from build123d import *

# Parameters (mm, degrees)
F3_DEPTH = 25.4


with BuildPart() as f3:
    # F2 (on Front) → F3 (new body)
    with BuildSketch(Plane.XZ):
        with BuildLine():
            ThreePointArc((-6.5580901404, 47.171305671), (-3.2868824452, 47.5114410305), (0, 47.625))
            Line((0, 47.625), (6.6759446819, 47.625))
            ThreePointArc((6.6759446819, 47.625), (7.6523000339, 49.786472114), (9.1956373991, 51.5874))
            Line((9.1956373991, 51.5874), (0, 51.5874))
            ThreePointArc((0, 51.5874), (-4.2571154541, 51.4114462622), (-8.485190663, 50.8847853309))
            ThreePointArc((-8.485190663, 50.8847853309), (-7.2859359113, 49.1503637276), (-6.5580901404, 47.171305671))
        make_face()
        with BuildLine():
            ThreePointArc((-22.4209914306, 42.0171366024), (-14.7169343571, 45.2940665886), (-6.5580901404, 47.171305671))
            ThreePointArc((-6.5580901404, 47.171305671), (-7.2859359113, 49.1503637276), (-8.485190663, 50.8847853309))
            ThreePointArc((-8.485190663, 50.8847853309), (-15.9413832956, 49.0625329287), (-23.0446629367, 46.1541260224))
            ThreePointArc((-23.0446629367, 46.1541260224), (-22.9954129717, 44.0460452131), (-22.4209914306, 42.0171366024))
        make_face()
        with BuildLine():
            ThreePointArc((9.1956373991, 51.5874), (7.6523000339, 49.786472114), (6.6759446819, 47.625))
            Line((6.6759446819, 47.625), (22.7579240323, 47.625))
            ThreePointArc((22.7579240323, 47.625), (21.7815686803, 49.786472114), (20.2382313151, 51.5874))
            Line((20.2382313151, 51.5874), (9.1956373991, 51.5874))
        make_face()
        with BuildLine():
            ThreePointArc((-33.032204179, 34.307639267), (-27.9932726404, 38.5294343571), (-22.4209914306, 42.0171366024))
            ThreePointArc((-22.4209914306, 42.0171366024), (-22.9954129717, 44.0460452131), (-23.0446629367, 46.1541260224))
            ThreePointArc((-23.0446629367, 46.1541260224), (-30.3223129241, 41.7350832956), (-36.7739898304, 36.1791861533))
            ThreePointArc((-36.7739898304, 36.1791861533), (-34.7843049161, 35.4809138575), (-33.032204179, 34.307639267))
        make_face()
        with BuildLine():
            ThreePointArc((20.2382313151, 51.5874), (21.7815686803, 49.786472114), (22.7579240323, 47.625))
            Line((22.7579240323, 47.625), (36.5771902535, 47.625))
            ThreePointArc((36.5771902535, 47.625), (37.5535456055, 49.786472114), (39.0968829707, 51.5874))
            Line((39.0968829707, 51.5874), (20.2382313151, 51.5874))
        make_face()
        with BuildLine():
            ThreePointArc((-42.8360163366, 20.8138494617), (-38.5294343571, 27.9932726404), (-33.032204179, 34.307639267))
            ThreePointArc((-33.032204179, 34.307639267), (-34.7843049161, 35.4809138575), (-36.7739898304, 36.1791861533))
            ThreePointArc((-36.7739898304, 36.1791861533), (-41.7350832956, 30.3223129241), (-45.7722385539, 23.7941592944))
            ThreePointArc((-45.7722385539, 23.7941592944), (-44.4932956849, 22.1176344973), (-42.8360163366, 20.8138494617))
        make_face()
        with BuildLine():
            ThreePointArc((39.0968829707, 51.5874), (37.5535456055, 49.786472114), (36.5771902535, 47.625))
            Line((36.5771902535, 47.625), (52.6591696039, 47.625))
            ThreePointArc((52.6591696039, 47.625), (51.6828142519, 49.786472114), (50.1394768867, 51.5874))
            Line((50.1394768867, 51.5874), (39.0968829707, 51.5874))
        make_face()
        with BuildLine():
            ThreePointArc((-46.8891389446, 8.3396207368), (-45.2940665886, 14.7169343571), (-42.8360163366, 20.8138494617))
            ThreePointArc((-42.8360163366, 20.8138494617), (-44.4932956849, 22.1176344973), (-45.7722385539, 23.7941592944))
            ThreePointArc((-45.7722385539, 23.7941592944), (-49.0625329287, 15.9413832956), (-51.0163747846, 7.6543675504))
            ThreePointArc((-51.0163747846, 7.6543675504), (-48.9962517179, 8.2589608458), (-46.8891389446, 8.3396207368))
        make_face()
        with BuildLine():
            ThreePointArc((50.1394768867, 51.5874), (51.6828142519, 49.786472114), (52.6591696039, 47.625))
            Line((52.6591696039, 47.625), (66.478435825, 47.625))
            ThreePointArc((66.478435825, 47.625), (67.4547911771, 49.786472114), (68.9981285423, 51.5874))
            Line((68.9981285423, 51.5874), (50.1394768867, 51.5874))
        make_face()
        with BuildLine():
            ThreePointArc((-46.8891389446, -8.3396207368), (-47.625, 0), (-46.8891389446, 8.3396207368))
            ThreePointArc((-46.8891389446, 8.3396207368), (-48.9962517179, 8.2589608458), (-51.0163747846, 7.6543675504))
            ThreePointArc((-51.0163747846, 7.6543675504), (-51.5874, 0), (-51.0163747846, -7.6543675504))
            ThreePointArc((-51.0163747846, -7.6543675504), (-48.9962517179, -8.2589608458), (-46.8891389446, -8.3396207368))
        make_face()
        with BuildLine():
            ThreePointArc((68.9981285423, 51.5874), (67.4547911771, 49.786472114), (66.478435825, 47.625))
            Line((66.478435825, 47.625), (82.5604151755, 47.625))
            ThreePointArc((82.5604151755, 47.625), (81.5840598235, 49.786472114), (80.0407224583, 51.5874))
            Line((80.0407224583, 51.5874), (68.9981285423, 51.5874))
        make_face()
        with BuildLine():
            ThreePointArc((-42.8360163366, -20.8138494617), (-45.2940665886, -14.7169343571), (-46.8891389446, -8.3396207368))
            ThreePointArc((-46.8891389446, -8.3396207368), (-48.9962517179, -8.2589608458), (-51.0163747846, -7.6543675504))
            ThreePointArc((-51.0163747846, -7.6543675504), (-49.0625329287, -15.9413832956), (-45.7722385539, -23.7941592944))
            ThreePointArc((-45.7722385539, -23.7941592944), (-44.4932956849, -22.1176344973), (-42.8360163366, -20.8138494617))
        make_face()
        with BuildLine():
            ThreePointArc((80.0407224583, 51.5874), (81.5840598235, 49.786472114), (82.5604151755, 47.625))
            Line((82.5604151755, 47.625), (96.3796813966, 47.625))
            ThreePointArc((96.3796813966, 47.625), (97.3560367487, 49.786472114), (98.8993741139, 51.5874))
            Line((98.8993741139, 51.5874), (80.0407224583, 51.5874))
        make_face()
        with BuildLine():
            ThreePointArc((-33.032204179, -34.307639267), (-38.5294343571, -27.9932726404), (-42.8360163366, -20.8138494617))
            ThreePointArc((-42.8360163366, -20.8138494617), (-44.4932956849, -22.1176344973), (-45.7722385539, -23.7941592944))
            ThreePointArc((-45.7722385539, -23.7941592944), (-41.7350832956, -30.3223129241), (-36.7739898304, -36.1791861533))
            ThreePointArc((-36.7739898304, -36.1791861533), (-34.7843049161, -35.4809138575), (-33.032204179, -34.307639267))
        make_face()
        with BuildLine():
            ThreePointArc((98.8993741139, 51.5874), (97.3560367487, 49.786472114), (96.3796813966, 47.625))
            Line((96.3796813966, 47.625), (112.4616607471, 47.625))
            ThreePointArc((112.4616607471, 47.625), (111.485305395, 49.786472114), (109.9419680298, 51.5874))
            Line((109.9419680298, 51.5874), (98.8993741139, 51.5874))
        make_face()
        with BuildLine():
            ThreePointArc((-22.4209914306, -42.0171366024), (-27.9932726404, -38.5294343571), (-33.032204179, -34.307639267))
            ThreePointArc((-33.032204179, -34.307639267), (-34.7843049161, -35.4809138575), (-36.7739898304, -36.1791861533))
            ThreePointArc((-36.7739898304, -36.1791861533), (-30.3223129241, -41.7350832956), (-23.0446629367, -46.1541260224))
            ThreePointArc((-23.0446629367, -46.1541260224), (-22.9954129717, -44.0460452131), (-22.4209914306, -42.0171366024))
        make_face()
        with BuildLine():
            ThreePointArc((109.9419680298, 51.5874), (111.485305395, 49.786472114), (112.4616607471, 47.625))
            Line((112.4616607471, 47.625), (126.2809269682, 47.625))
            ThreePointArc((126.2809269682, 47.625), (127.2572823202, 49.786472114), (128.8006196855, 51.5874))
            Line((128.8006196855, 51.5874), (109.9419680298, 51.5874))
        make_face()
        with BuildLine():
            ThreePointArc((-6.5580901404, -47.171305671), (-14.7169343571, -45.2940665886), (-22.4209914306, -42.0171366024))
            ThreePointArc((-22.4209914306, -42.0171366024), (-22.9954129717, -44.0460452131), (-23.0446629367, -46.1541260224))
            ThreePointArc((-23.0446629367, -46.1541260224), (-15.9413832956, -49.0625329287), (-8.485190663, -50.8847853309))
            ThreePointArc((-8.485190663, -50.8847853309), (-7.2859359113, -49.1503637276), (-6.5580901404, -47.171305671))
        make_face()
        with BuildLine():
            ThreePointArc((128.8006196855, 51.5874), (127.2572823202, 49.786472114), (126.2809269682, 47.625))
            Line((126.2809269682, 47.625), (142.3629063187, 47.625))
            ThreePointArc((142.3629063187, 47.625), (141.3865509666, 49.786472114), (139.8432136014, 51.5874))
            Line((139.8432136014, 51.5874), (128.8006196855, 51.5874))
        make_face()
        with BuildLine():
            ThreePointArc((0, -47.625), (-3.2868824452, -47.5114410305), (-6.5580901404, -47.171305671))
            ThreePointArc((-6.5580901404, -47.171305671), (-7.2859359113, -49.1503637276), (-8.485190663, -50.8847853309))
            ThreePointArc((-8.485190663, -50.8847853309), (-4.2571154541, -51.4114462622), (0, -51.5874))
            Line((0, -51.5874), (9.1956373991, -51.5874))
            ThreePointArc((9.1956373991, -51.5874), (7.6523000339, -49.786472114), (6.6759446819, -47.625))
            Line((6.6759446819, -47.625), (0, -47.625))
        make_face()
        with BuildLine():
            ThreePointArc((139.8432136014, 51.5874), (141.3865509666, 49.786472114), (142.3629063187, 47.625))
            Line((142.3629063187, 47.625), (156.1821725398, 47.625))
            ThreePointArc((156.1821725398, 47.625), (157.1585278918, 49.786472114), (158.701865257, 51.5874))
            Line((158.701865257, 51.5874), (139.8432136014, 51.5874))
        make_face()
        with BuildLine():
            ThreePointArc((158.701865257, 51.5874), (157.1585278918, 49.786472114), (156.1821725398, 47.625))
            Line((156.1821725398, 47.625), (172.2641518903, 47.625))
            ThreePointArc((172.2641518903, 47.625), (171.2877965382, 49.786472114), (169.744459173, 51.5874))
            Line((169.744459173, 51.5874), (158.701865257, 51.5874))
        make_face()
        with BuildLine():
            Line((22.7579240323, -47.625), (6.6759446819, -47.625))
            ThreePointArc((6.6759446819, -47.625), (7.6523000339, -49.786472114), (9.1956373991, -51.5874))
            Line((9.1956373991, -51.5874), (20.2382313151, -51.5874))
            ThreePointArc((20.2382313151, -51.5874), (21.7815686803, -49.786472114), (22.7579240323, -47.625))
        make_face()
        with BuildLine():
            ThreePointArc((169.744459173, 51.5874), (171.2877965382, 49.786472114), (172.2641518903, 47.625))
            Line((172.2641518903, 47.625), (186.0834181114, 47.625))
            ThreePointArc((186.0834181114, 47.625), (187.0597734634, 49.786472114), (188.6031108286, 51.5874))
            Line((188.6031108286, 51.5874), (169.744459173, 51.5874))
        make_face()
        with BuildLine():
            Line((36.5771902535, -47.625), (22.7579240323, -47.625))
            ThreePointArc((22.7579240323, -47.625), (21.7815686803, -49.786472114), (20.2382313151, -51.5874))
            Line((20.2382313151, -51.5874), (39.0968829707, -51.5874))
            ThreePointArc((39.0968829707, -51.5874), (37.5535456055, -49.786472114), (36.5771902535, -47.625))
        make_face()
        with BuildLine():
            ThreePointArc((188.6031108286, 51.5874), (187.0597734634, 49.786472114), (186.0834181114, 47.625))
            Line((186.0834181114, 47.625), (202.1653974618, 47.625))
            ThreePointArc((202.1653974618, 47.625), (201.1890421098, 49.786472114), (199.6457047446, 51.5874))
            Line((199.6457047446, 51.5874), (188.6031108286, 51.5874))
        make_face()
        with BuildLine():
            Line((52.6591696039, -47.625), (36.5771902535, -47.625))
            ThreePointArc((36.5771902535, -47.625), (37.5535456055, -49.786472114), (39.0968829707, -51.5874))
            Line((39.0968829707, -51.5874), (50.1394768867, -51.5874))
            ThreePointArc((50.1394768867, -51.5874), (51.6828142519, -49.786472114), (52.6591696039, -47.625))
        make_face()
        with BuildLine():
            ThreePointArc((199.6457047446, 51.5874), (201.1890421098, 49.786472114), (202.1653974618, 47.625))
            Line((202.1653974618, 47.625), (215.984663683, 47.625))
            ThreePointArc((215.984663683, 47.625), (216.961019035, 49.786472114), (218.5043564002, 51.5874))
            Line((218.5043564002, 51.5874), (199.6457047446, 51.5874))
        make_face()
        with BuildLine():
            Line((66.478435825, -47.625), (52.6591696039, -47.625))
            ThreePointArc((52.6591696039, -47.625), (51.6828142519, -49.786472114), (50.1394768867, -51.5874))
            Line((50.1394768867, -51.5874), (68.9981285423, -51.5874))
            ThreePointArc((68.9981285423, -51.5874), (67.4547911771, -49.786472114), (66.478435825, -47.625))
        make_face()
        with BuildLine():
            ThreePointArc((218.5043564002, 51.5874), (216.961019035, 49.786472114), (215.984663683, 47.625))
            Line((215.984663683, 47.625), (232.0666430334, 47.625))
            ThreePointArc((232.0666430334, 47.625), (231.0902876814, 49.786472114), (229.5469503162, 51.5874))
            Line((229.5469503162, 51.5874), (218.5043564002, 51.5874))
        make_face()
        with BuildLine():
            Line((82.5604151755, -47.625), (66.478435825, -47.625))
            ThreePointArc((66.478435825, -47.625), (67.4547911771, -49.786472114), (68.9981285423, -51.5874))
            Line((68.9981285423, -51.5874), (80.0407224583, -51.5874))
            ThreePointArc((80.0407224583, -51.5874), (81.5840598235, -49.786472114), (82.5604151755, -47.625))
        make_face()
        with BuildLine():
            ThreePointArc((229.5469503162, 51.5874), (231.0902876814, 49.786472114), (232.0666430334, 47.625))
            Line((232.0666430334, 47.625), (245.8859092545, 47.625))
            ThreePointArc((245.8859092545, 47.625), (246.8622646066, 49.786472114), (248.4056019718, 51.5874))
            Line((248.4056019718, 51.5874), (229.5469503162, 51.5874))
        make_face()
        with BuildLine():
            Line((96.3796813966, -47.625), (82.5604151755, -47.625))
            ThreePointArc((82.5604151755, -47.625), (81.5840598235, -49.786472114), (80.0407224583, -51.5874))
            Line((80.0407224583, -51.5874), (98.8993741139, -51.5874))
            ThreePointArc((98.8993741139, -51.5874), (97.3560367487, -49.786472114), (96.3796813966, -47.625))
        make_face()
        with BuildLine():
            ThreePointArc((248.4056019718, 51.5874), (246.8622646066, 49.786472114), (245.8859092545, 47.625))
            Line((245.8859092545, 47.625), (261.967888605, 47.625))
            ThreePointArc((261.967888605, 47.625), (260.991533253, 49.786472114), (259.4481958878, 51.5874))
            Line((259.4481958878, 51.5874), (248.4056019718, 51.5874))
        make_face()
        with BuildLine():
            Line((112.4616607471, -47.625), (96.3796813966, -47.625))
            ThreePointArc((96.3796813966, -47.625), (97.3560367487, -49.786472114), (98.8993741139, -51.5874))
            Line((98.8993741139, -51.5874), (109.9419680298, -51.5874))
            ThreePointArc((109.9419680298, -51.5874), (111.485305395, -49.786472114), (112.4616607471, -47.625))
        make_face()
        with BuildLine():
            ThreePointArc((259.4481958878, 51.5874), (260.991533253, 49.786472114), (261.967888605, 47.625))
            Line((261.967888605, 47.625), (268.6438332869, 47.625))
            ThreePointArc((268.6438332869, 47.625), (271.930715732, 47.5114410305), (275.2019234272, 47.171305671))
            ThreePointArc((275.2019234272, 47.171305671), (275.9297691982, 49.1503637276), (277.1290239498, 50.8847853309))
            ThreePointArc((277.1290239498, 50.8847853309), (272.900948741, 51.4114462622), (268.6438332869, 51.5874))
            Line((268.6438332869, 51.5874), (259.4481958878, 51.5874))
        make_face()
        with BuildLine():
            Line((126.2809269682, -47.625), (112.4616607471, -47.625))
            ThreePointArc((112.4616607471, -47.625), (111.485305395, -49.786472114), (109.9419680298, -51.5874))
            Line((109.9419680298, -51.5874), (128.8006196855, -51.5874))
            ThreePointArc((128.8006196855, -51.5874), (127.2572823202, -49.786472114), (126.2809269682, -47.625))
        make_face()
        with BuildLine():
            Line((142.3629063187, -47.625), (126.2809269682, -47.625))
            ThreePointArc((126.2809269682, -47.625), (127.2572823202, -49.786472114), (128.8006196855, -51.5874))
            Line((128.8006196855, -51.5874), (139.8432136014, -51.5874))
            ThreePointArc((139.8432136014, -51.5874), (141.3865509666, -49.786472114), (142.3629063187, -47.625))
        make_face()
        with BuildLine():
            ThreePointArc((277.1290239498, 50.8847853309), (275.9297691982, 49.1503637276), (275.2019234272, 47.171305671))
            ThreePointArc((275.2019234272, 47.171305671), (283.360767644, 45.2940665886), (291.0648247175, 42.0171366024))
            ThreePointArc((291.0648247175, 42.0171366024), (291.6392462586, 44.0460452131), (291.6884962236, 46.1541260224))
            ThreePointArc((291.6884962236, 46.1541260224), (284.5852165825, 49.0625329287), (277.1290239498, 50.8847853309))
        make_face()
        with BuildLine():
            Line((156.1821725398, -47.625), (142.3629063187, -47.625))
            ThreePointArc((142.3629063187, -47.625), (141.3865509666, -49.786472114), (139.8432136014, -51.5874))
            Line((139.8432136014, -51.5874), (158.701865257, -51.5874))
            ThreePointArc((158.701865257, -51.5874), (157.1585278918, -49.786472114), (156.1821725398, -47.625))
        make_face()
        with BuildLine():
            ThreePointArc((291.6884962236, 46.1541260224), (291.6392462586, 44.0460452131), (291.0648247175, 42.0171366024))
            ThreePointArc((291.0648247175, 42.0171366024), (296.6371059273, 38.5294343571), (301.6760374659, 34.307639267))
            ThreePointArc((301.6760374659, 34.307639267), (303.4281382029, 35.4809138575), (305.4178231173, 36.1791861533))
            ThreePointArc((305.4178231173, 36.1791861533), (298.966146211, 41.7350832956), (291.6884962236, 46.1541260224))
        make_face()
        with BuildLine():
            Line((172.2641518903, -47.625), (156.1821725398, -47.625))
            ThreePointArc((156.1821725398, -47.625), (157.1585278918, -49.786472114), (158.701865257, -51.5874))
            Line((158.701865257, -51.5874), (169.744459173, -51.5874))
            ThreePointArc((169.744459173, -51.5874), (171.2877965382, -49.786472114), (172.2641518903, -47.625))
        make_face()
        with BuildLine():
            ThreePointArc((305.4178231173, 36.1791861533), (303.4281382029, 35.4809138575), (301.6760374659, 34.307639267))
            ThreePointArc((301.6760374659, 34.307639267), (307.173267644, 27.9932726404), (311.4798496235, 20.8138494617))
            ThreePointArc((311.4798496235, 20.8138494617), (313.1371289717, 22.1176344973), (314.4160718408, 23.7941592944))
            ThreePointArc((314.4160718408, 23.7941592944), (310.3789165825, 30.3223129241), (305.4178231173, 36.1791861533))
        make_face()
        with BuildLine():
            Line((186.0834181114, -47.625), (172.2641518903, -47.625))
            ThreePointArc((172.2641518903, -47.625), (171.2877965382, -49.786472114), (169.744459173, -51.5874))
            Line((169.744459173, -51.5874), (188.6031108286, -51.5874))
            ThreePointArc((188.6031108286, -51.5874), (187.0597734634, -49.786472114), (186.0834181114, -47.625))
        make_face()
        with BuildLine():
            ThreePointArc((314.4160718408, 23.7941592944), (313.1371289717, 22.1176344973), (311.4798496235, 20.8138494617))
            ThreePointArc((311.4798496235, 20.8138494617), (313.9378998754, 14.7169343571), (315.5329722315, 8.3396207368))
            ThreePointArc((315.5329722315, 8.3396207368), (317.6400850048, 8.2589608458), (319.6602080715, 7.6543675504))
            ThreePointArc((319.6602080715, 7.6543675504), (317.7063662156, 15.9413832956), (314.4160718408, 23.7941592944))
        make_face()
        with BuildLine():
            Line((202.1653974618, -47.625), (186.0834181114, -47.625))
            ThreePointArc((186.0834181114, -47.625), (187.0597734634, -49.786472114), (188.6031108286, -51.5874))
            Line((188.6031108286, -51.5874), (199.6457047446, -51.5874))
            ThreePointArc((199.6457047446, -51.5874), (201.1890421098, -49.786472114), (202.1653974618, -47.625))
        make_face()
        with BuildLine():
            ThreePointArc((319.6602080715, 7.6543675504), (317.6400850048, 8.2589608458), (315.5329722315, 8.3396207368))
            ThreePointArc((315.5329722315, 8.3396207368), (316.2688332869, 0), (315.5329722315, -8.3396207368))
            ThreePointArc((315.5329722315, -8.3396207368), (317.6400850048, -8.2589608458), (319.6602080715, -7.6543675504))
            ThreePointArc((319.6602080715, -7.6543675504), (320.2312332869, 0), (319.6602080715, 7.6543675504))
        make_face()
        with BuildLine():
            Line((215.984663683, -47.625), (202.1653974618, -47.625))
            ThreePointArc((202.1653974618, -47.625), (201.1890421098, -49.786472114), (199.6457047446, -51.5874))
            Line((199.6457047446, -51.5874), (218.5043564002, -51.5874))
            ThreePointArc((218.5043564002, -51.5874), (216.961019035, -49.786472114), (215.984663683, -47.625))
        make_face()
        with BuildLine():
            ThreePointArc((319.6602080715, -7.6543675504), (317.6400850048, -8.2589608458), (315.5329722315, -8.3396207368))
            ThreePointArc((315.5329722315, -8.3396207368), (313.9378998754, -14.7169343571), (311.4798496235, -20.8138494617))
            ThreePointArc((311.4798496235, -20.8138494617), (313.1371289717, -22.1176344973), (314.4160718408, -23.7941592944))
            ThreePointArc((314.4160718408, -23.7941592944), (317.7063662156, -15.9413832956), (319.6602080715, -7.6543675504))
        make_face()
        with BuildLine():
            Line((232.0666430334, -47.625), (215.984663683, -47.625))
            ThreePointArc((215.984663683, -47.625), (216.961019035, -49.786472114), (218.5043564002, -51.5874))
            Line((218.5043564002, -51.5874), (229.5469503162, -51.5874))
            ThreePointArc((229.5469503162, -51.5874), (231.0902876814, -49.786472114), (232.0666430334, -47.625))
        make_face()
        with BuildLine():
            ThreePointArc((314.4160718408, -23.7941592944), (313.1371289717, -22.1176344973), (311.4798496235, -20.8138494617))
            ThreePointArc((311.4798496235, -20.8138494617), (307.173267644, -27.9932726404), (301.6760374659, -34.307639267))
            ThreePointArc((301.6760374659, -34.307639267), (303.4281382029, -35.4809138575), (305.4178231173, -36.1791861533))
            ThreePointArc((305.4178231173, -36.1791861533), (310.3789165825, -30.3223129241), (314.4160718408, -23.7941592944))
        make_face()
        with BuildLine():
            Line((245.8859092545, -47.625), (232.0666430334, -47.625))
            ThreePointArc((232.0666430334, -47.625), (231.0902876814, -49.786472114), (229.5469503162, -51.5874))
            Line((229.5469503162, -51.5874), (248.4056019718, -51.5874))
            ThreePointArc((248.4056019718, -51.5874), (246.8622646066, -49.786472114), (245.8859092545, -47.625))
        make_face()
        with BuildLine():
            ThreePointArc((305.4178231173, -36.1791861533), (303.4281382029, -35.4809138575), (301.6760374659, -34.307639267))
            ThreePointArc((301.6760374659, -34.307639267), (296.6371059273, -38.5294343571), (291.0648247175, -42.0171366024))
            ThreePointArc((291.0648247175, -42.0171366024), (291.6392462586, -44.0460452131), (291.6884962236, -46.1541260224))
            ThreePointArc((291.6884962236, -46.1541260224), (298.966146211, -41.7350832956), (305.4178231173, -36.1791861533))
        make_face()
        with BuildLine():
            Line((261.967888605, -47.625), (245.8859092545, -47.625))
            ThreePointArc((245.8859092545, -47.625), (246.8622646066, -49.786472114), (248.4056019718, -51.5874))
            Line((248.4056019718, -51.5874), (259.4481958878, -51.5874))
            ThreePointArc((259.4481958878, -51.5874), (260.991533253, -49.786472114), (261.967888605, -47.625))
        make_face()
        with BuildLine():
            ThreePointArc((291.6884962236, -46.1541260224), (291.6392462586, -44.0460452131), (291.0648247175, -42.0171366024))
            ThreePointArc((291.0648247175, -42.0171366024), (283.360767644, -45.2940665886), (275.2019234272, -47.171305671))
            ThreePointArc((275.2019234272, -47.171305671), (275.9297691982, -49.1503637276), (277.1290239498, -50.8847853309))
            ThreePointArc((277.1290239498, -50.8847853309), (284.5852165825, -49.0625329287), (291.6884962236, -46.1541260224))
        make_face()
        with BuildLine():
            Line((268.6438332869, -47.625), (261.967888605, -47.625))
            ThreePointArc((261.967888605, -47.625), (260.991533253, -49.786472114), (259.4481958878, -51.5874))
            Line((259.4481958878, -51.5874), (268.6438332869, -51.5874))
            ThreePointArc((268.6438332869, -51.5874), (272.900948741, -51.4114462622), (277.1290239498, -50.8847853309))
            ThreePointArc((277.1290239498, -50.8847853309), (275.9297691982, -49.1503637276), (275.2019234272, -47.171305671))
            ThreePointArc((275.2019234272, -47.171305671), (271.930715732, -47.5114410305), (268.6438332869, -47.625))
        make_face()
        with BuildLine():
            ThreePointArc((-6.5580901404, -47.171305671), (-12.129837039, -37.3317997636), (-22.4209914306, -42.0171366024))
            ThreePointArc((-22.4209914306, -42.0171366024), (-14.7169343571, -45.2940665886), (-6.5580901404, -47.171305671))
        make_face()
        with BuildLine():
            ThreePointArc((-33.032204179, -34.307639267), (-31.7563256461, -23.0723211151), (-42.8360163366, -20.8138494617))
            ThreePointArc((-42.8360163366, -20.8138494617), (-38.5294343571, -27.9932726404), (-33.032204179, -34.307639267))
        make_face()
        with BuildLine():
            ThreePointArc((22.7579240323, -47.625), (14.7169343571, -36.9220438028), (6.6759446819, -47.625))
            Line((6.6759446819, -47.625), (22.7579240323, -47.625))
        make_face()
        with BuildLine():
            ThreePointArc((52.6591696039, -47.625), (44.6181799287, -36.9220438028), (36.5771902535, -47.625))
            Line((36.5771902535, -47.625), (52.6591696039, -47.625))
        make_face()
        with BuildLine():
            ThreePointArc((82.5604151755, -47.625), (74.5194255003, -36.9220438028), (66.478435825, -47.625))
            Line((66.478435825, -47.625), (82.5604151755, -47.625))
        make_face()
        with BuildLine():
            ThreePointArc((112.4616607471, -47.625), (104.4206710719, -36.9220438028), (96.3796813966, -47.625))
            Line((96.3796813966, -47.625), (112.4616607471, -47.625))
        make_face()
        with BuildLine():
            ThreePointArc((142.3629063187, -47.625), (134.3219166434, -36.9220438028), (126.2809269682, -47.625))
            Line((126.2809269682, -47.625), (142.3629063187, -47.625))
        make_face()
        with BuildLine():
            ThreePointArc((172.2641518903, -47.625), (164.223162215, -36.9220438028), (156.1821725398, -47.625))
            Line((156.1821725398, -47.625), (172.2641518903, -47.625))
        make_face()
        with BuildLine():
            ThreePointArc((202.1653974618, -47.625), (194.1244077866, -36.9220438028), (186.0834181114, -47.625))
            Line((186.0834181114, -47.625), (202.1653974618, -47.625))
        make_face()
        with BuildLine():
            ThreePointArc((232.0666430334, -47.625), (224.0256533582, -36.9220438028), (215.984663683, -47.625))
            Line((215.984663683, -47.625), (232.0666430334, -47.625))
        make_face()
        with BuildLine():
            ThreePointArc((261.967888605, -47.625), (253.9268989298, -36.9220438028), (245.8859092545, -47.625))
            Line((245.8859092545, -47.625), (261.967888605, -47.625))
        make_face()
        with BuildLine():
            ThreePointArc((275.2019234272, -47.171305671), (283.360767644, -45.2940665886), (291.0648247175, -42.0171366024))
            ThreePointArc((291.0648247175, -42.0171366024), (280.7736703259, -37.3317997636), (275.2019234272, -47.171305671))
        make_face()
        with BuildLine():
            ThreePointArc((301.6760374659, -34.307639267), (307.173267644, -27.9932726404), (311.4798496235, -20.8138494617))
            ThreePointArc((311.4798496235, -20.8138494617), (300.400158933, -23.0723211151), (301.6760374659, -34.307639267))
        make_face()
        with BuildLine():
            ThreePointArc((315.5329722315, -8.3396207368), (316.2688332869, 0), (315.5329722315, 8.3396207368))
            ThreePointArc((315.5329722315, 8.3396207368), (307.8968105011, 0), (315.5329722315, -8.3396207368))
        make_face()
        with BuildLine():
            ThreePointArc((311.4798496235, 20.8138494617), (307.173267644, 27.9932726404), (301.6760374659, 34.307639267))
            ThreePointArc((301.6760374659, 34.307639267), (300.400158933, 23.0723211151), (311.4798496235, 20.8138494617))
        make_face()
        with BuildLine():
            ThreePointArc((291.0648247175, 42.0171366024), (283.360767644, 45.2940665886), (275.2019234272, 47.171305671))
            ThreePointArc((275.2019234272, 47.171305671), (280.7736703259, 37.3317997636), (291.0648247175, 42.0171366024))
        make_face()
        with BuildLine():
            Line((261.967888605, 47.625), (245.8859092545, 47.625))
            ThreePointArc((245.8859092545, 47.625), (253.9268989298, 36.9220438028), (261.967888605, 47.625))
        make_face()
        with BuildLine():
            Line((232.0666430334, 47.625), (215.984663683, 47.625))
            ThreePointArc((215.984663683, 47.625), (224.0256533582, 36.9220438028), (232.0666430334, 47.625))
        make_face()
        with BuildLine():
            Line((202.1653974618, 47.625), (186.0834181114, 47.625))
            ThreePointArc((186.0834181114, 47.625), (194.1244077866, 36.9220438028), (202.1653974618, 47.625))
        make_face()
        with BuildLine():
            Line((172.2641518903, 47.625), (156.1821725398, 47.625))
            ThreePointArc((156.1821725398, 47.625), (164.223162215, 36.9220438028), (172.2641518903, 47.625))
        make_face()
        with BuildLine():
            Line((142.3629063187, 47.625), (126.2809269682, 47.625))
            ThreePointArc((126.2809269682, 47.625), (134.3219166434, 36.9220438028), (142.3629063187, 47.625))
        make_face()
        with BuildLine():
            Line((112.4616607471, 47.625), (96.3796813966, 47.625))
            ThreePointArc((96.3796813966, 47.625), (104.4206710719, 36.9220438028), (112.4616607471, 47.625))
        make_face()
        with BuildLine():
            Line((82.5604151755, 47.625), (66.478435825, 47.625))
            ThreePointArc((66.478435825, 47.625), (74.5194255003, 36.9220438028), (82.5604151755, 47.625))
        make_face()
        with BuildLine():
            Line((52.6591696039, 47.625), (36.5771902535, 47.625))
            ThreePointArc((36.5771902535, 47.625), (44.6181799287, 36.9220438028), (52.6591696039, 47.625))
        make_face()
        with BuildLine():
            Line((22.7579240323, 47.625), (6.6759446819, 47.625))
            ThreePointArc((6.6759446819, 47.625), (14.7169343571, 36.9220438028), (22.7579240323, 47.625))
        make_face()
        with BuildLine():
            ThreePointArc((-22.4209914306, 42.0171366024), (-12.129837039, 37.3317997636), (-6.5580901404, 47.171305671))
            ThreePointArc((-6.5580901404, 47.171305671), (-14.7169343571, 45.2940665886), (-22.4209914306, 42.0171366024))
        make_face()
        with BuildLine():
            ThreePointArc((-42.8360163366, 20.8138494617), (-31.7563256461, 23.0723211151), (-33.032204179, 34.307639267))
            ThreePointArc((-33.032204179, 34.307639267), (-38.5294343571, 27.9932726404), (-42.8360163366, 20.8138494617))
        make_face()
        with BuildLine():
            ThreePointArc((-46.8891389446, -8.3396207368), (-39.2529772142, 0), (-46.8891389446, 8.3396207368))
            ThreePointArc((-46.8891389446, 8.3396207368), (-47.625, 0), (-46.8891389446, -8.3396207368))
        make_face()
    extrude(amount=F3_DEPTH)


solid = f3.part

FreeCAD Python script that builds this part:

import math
import FreeCAD as App
import Part
import Sketcher

V = App.Vector
Q = App.Units.Quantity

doc = App.newDocument("Part")
body = doc.addObject("PartDesign::Body", "Body")

sketch1 = body.newObject("Sketcher::SketchObject", "Sketch")
sketch1.AttachmentSupport = (doc.getObject("XZ_Plane"), [""])
sketch1.MapMode = "FlatFace"
sketch1.addGeometry([
    Part.ArcOfCircle(Part.Circle(V(269, 0, 0), V(0, 0, 1), 52), math.radians(-80.53), math.radians(-63.47)),
    Part.ArcOfCircle(Part.Circle(V(269, 0, 0), V(0, 0, 1), 52), math.radians(-63.47), math.radians(-44.53)),
    Part.ArcOfCircle(Part.Circle(V(269, 0, 0), V(0, 0, 1), 52), math.radians(-44.53), math.radians(-27.47)),
    Part.ArcOfCircle(Part.Circle(V(269, 0, 0), V(0, 0, 1), 52), math.radians(-27.47), math.radians(-8.53)),
    Part.ArcOfCircle(Part.Circle(V(269, 0, 0), V(0, 0, 1), 52), math.radians(-8.53), math.radians(8.53)),
    Part.ArcOfCircle(Part.Circle(V(269, 0, 0), V(0, 0, 1), 52), math.radians(8.53), math.radians(27.47)),
    Part.ArcOfCircle(Part.Circle(V(269, 0, 0), V(0, 0, 1), 52), math.radians(27.47), math.radians(44.53)),
    Part.ArcOfCircle(Part.Circle(V(269, 0, 0), V(0, 0, 1), 52), math.radians(44.53), math.radians(63.47)),
    Part.ArcOfCircle(Part.Circle(V(269, 0, 0), V(0, 0, 1), 52), math.radians(63.47), math.radians(80.53)),
    Part.ArcOfCircle(Part.Circle(V(269, 0, 0), V(0, 0, 1), 52), math.radians(80.53), math.radians(90)),
    Part.LineSegment(V(269, 52, 0), V(0, 52, 0)),
    Part.ArcOfCircle(Part.Circle(V(0, 0, 0), V(0, 0, 1), 52), math.radians(90), math.radians(117)),
    Part.ArcOfCircle(Part.Circle(V(0, 0, 0), V(0, 0, 1), 52), math.radians(116.53), math.radians(135.47)),
    Part.ArcOfCircle(Part.Circle(V(0, 0, 0), V(0, 0, 1), 52), math.radians(135.47), math.radians(152.53)),
    Part.ArcOfCircle(Part.Circle(V(0, 0, 0), V(0, 0, 1), 52), math.radians(152.53), math.radians(171.47)),
    Part.ArcOfCircle(Part.Circle(V(0, 0, 0), V(0, 0, 1), 52), math.radians(171.47), math.radians(188.53)),
    Part.ArcOfCircle(Part.Circle(V(0, 0, 0), V(0, 0, 1), 52), math.radians(-171.47), math.radians(-152.53)),
    Part.ArcOfCircle(Part.Circle(V(0, 0, 0), V(0, 0, 1), 52), math.radians(-152.53), math.radians(-135.47)),
    Part.ArcOfCircle(Part.Circle(V(0, 0, 0), V(0, 0, 1), 52), math.radians(-135.47), math.radians(-116.53)),
    Part.ArcOfCircle(Part.Circle(V(0, 0, 0), V(0, 0, 1), 52), math.radians(-117), math.radians(-90)),
    Part.LineSegment(V(0, -52, 0), V(269, -52, 0)),
    Part.ArcOfCircle(Part.Circle(V(269, 0, 0), V(0, 0, 1), 52), math.radians(-90), math.radians(-80.53)),
    Part.ArcOfCircle(Part.Circle(V(0, 0, 0), V(0, 0, 1), 48), math.radians(90), math.radians(97.91)),
    Part.LineSegment(V(0, 48, 0), V(7, 48, 0)),
    Part.ArcOfCircle(Part.Circle(V(15, 45, 0), V(0, 0, 1), 8), math.radians(164), math.radians(376)),
    Part.LineSegment(V(23, 48, 0), V(37, 48, 0)),
    Part.ArcOfCircle(Part.Circle(V(45, 45, 0), V(0, 0, 1), 8), math.radians(164), math.radians(376)),
    Part.LineSegment(V(53, 48, 0), V(66, 48, 0)),
    Part.ArcOfCircle(Part.Circle(V(75, 45, 0), V(0, 0, 1), 8), math.radians(164), math.radians(376)),
    Part.LineSegment(V(83, 48, 0), V(96, 48, 0)),
    Part.ArcOfCircle(Part.Circle(V(104, 45, 0), V(0, 0, 1), 8), math.radians(164), math.radians(376)),
    Part.LineSegment(V(112, 48, 0), V(126, 48, 0)),
    Part.ArcOfCircle(Part.Circle(V(134, 45, 0), V(0, 0, 1), 8), math.radians(164), math.radians(376)),
    Part.LineSegment(V(142, 48, 0), V(156, 48, 0)),
    Part.ArcOfCircle(Part.Circle(V(164, 45, 0), V(0, 0, 1), 8), math.radians(164), math.radians(376)),
    Part.LineSegment(V(172, 48, 0), V(186, 48, 0)),
    Part.ArcOfCircle(Part.Circle(V(194, 45, 0), V(0, 0, 1), 8), math.radians(164), math.radians(376)),
    Part.LineSegment(V(202, 48, 0), V(216, 48, 0)),
    Part.ArcOfCircle(Part.Circle(V(224, 45, 0), V(0, 0, 1), 8), math.radians(164), math.radians(376)),
    Part.LineSegment(V(232, 48, 0), V(246, 48, 0)),
    Part.ArcOfCircle(Part.Circle(V(254, 45, 0), V(0, 0, 1), 8), math.radians(164), math.radians(376)),
    Part.LineSegment(V(262, 48, 0), V(269, 48, 0)),
    Part.ArcOfCircle(Part.Circle(V(269, 0, 0), V(0, 0, 1), 48), math.radians(82.09), math.radians(90)),
    Part.ArcOfCircle(Part.Circle(V(283, 45, 0), V(0, 0, 1), 8), math.radians(167), math.radians(337)),
    Part.ArcOfCircle(Part.Circle(V(269, 0, 0), V(0, 0, 1), 48), math.radians(46.09), math.radians(61.91)),
    Part.ArcOfCircle(Part.Circle(V(307, 28, 0), V(0, 0, 1), 8), math.radians(131), math.radians(301)),
    Part.ArcOfCircle(Part.Circle(V(269, 0, 0), V(0, 0, 1), 48), math.radians(10.09), math.radians(25.91)),
    Part.ArcOfCircle(Part.Circle(V(316, 0, 0), V(0, 0, 1), 8), math.radians(95), math.radians(265)),
    Part.ArcOfCircle(Part.Circle(V(269, 0, 0), V(0, 0, 1), 48), math.radians(-25.91), math.radians(-10.09)),
    Part.ArcOfCircle(Part.Circle(V(307, -28, 0), V(0, 0, 1), 8), math.radians(59), math.radians(229)),
    Part.ArcOfCircle(Part.Circle(V(269, 0, 0), V(0, 0, 1), 48), math.radians(-61.91), math.radians(-46.09)),
    Part.ArcOfCircle(Part.Circle(V(283, -45, 0), V(0, 0, 1), 8), math.radians(23), math.radians(193)),
    Part.ArcOfCircle(Part.Circle(V(269, 0, 0), V(0, 0, 1), 48), math.radians(-90), math.radians(-82.09)),
    Part.LineSegment(V(269, -48, 0), V(262, -48, 0)),
    Part.ArcOfCircle(Part.Circle(V(254, -45, 0), V(0, 0, 1), 8), math.radians(-16), math.radians(196)),
    Part.LineSegment(V(246, -48, 0), V(232, -48, 0)),
    Part.ArcOfCircle(Part.Circle(V(224, -45, 0), V(0, 0, 1), 8), math.radians(-16), math.radians(196)),
    Part.LineSegment(V(216, -48, 0), V(202, -48, 0)),
    Part.ArcOfCircle(Part.Circle(V(194, -45, 0), V(0, 0, 1), 8), math.radians(-16), math.radians(196)),
    Part.LineSegment(V(186, -48, 0), V(172, -48, 0)),
    Part.ArcOfCircle(Part.Circle(V(164, -45, 0), V(0, 0, 1), 8), math.radians(-16), math.radians(196)),
    Part.LineSegment(V(156, -48, 0), V(142, -48, 0)),
    Part.ArcOfCircle(Part.Circle(V(134, -45, 0), V(0, 0, 1), 8), math.radians(-16), math.radians(196)),
    Part.LineSegment(V(126, -48, 0), V(112, -48, 0)),
    Part.ArcOfCircle(Part.Circle(V(104, -45, 0), V(0, 0, 1), 8), math.radians(-16), math.radians(196)),
    Part.LineSegment(V(96, -48, 0), V(83, -48, 0)),
    Part.ArcOfCircle(Part.Circle(V(75, -45, 0), V(0, 0, 1), 8), math.radians(-16), math.radians(196)),
    Part.LineSegment(V(66, -48, 0), V(53, -48, 0)),
    Part.ArcOfCircle(Part.Circle(V(45, -45, 0), V(0, 0, 1), 8), math.radians(-16), math.radians(196)),
    Part.LineSegment(V(37, -48, 0), V(23, -48, 0)),
    Part.ArcOfCircle(Part.Circle(V(15, -45, 0), V(0, 0, 1), 8), math.radians(-16), math.radians(196)),
    Part.LineSegment(V(7, -48, 0), V(0, -48, 0)),
    Part.ArcOfCircle(Part.Circle(V(0, 0, 0), V(0, 0, 1), 48), math.radians(-97.91), math.radians(-90)),
    Part.ArcOfCircle(Part.Circle(V(-15, -45, 0), V(0, 0, 1), 8), math.radians(-13), math.radians(157)),
    Part.ArcOfCircle(Part.Circle(V(0, 0, 0), V(0, 0, 1), 48), math.radians(-133.91), math.radians(-118.09)),
    Part.ArcOfCircle(Part.Circle(V(-39, -28, 0), V(0, 0, 1), 8), math.radians(-49), math.radians(121)),
    Part.ArcOfCircle(Part.Circle(V(0, 0, 0), V(0, 0, 1), 48), math.radians(-169.91), math.radians(-154.09)),
    Part.ArcOfCircle(Part.Circle(V(-48, 0, 0), V(0, 0, 1), 8), math.radians(-85), math.radians(85)),
    Part.ArcOfCircle(Part.Circle(V(0, 0, 0), V(0, 0, 1), 48), math.radians(154.09), math.radians(169.91)),
    Part.ArcOfCircle(Part.Circle(V(-39, 28, 0), V(0, 0, 1), 8), math.radians(-121), math.radians(49)),
    Part.ArcOfCircle(Part.Circle(V(0, 0, 0), V(0, 0, 1), 48), math.radians(118.09), math.radians(133.91)),
    Part.ArcOfCircle(Part.Circle(V(-15, 45, 0), V(0, 0, 1), 8), math.radians(-157), math.radians(13)),
], False)
sketch1.addConstraint([
    Sketcher.Constraint("Tangent", 0, 2, 1, 1),
    Sketcher.Constraint("Tangent", 1, 2, 2, 1),
    Sketcher.Constraint("Tangent", 2, 2, 3, 1),
    Sketcher.Constraint("Tangent", 3, 2, 4, 1),
    Sketcher.Constraint("Tangent", 4, 2, 5, 1),
    Sketcher.Constraint("Tangent", 5, 2, 6, 1),
    Sketcher.Constraint("Tangent", 6, 2, 7, 1),
    Sketcher.Constraint("Tangent", 7, 2, 8, 1),
    Sketcher.Constraint("Tangent", 8, 2, 9, 1),
    Sketcher.Constraint("Tangent", 9, 2, 10, 1),
    Sketcher.Constraint("Tangent", 10, 2, 11, 1),
    Sketcher.Constraint("Tangent", 11, 2, 12, 1),
    Sketcher.Constraint("Tangent", 12, 2, 13, 1),
    Sketcher.Constraint("Tangent", 13, 2, 14, 1),
    Sketcher.Constraint("Tangent", 14, 2, 15, 1),
    Sketcher.Constraint("Tangent", 15, 2, 16, 1),
    Sketcher.Constraint("Tangent", 16, 2, 17, 1),
    Sketcher.Constraint("Tangent", 17, 2, 18, 1),
    Sketcher.Constraint("Tangent", 18, 2, 19, 1),
    Sketcher.Constraint("Tangent", 19, 2, 20, 1),
    Sketcher.Constraint("Tangent", 20, 2, 21, 1),
    Sketcher.Constraint("Tangent", 21, 2, 0, 1),
    Sketcher.Constraint("Tangent", 22, 1, 23, 1),
    Sketcher.Constraint("Coincident", 23, 2, 24, 1),
    Sketcher.Constraint("Coincident", 24, 2, 25, 1),
    Sketcher.Constraint("Coincident", 25, 2, 26, 1),
    Sketcher.Constraint("Coincident", 26, 2, 27, 1),
    Sketcher.Constraint("Coincident", 27, 2, 28, 1),
    Sketcher.Constraint("Coincident", 28, 2, 29, 1),
    Sketcher.Constraint("Coincident", 29, 2, 30, 1),
    Sketcher.Constraint("Coincident", 30, 2, 31, 1),
    Sketcher.Constraint("Coincident", 31, 2, 32, 1),
    Sketcher.Constraint("Coincident", 32, 2, 33, 1),
    Sketcher.Constraint("Coincident", 33, 2, 34, 1),
    Sketcher.Constraint("Coincident", 34, 2, 35, 1),
    Sketcher.Constraint("Coincident", 35, 2, 36, 1),
    Sketcher.Constraint("Coincident", 36, 2, 37, 1),
    Sketcher.Constraint("Coincident", 37, 2, 38, 1),
    Sketcher.Constraint("Coincident", 38, 2, 39, 1),
    Sketcher.Constraint("Coincident", 39, 2, 40, 1),
    Sketcher.Constraint("Coincident", 40, 2, 41, 1),
    Sketcher.Constraint("Tangent", 41, 2, 42, 2),
    Sketcher.Constraint("Coincident", 42, 1, 43, 1),
    Sketcher.Constraint("Coincident", 43, 2, 44, 2),
    Sketcher.Constraint("Coincident", 44, 1, 45, 1),
    Sketcher.Constraint("Coincident", 45, 2, 46, 2),
    Sketcher.Constraint("Coincident", 46, 1, 47, 1),
    Sketcher.Constraint("Coincident", 47, 2, 48, 2),
    Sketcher.Constraint("Coincident", 48, 1, 49, 1),
    Sketcher.Constraint("Coincident", 49, 2, 50, 2),
    Sketcher.Constraint("Coincident", 50, 1, 51, 1),
    Sketcher.Constraint("Coincident", 51, 2, 52, 2),
    Sketcher.Constraint("Tangent", 52, 1, 53, 1),
    Sketcher.Constraint("Coincident", 53, 2, 54, 1),
    Sketcher.Constraint("Coincident", 54, 2, 55, 1),
    Sketcher.Constraint("Coincident", 55, 2, 56, 1),
    Sketcher.Constraint("Coincident", 56, 2, 57, 1),
    Sketcher.Constraint("Coincident", 57, 2, 58, 1),
    Sketcher.Constraint("Coincident", 58, 2, 59, 1),
    Sketcher.Constraint("Coincident", 59, 2, 60, 1),
    Sketcher.Constraint("Coincident", 60, 2, 61, 1),
    Sketcher.Constraint("Coincident", 61, 2, 62, 1),
    Sketcher.Constraint("Coincident", 62, 2, 63, 1),
    Sketcher.Constraint("Coincident", 63, 2, 64, 1),
    Sketcher.Constraint("Coincident", 64, 2, 65, 1),
    Sketcher.Constraint("Coincident", 65, 2, 66, 1),
    Sketcher.Constraint("Coincident", 66, 2, 67, 1),
    Sketcher.Constraint("Coincident", 67, 2, 68, 1),
    Sketcher.Constraint("Coincident", 68, 2, 69, 1),
    Sketcher.Constraint("Coincident", 69, 2, 70, 1),
    Sketcher.Constraint("Coincident", 70, 2, 71, 1),
    Sketcher.Constraint("Tangent", 71, 2, 72, 2),
    Sketcher.Constraint("Coincident", 72, 1, 73, 1),
    Sketcher.Constraint("Coincident", 73, 2, 74, 2),
    Sketcher.Constraint("Coincident", 74, 1, 75, 1),
    Sketcher.Constraint("Coincident", 75, 2, 76, 2),
    Sketcher.Constraint("Coincident", 76, 1, 77, 1),
    Sketcher.Constraint("Coincident", 77, 2, 78, 2),
    Sketcher.Constraint("Coincident", 78, 1, 79, 1),
    Sketcher.Constraint("Coincident", 79, 2, 80, 2),
    Sketcher.Constraint("Coincident", 80, 1, 81, 1),
    Sketcher.Constraint("Coincident", 81, 2, 22, 2),
    Sketcher.Constraint("Horizontal", 10),
    Sketcher.Constraint("Horizontal", 20),
    Sketcher.Constraint("Horizontal", 23),
    Sketcher.Constraint("Horizontal", 25),
    Sketcher.Constraint("Horizontal", 27),
    Sketcher.Constraint("Horizontal", 29),
    Sketcher.Constraint("Horizontal", 31),
    Sketcher.Constraint("Horizontal", 33),
    Sketcher.Constraint("Horizontal", 35),
    Sketcher.Constraint("Horizontal", 37),
    Sketcher.Constraint("Horizontal", 39),
    Sketcher.Constraint("Horizontal", 41),
    Sketcher.Constraint("Horizontal", 53),
    Sketcher.Constraint("Horizontal", 55),
    Sketcher.Constraint("Horizontal", 57),
    Sketcher.Constraint("Horizontal", 59),
    Sketcher.Constraint("Horizontal", 61),
    Sketcher.Constraint("Horizontal", 63),
    Sketcher.Constraint("Horizontal", 65),
    Sketcher.Constraint("Horizontal", 67),
    Sketcher.Constraint("Horizontal", 69),
    Sketcher.Constraint("Horizontal", 71),
    Sketcher.Constraint("Coincident", 11, 3, -1, 1),
    Sketcher.Constraint("Coincident", 13, 3, -1, 1),
    Sketcher.Constraint("Coincident", 15, 3, -1, 1),
    Sketcher.Constraint("Coincident", 17, 3, -1, 1),
    Sketcher.Constraint("Coincident", 19, 3, -1, 1),
    Sketcher.Constraint("Coincident", 22, 3, -1, 1),
    Sketcher.Constraint("Coincident", 72, 3, -1, 1),
    Sketcher.Constraint("Coincident", 74, 3, -1, 1),
    Sketcher.Constraint("Coincident", 76, 3, -1, 1),
    Sketcher.Constraint("Coincident", 78, 3, -1, 1),
    Sketcher.Constraint("Coincident", 80, 3, -1, 1),
    Sketcher.Constraint("Coincident", 2, 3, 0, 3),
    Sketcher.Constraint("Coincident", 4, 3, 0, 3),
    Sketcher.Constraint("Coincident", 6, 3, 0, 3),
    Sketcher.Constraint("Coincident", 8, 3, 0, 3),
    Sketcher.Constraint("Coincident", 42, 3, 0, 3),
    Sketcher.Constraint("Coincident", 44, 3, 0, 3),
    Sketcher.Constraint("Coincident", 46, 3, 0, 3),
    Sketcher.Constraint("Coincident", 48, 3, 0, 3),
    Sketcher.Constraint("Coincident", 50, 3, 0, 3),
    Sketcher.Constraint("Coincident", 52, 3, 0, 3),
    Sketcher.Constraint("Equal", 8, 9),
    Sketcher.Constraint("Equal", 9, 11),
    Sketcher.Constraint("Equal", 24, 26),
    Sketcher.Constraint("Equal", 26, 28),
    Sketcher.Constraint("Equal", 28, 30),
    Sketcher.Constraint("Equal", 30, 32),
    Sketcher.Constraint("Equal", 32, 34),
    Sketcher.Constraint("Equal", 34, 36),
    Sketcher.Constraint("Equal", 36, 38),
    Sketcher.Constraint("Equal", 38, 40),
    Sketcher.Constraint("Equal", 22, 42),
    Sketcher.Constraint("Equal", 40, 43),
    Sketcher.Constraint("Equal", 42, 44),
    Sketcher.Constraint("Equal", 43, 45),
    Sketcher.Constraint("Equal", 44, 46),
    Sketcher.Constraint("Equal", 45, 47),
    Sketcher.Constraint("Equal", 46, 48),
    Sketcher.Constraint("Equal", 47, 49),
    Sketcher.Constraint("Equal", 48, 50),
    Sketcher.Constraint("Equal", 49, 51),
    Sketcher.Constraint("Equal", 50, 52),
    Sketcher.Constraint("Equal", 51, 54),
    Sketcher.Constraint("Equal", 54, 56),
    Sketcher.Constraint("Equal", 56, 58),
    Sketcher.Constraint("Equal", 58, 60),
    Sketcher.Constraint("Equal", 60, 62),
    Sketcher.Constraint("Equal", 62, 64),
    Sketcher.Constraint("Equal", 64, 66),
    Sketcher.Constraint("Equal", 66, 68),
    Sketcher.Constraint("Equal", 68, 70),
    Sketcher.Constraint("Equal", 52, 72),
    Sketcher.Constraint("Equal", 70, 73),
    Sketcher.Constraint("Equal", 72, 74),
    Sketcher.Constraint("Equal", 73, 75),
    Sketcher.Constraint("Equal", 74, 76),
    Sketcher.Constraint("Equal", 75, 77),
    Sketcher.Constraint("Equal", 76, 78),
    Sketcher.Constraint("Equal", 77, 79),
    Sketcher.Constraint("Equal", 78, 80),
    Sketcher.Constraint("Equal", 79, 81),
    Sketcher.Constraint("Symmetric", 24, 3, 73, 3, -1, 1),
    Sketcher.Constraint("Symmetric", 70, 3, 81, 3, -1, 1),
    Sketcher.Constraint("Symmetric", 70, 3, 73, 3, -2),
    Sketcher.Constraint("Symmetric", 45, 3, 49, 3, -1),
    Sketcher.Constraint("Symmetric", 43, 3, 51, 3, -1),
    Sketcher.Constraint("Symmetric", 40, 3, 54, 3, -1),
    Sketcher.Constraint("Symmetric", 38, 3, 56, 3, -1),
    Sketcher.Constraint("Symmetric", 36, 3, 58, 3, -1),
    Sketcher.Constraint("Symmetric", 34, 3, 60, 3, -1),
    Sketcher.Constraint("Symmetric", 32, 3, 62, 3, -1),
    Sketcher.Constraint("Symmetric", 30, 3, 64, 3, -1),
    Sketcher.Constraint("Symmetric", 28, 3, 66, 3, -1),
    Sketcher.Constraint("Symmetric", 26, 3, 68, 3, -1),
    Sketcher.Constraint("Symmetric", 75, 3, 79, 3, -1),
    Sketcher.Constraint("PointOnObject", 47, 3, -1),
    Sketcher.Constraint("PointOnObject", 77, 3, -1),
    Sketcher.Constraint("Horizontal", 24, 3, 26, 3),
    Sketcher.Constraint("Horizontal", 26, 3, 28, 3),
    Sketcher.Constraint("Horizontal", 28, 3, 30, 3),
    Sketcher.Constraint("Horizontal", 30, 3, 32, 3),
    Sketcher.Constraint("Horizontal", 32, 3, 34, 3),
    Sketcher.Constraint("Horizontal", 34, 3, 36, 3),
    Sketcher.Constraint("Horizontal", 36, 3, 38, 3),
    Sketcher.Constraint("Horizontal", 38, 3, 40, 3),
    Sketcher.Constraint("Horizontal", 40, 3, 43, 3),
    Sketcher.Constraint("Horizontal", 49, 3, 75, 3),
    Sketcher.Constraint("Horizontal", 7, 2, 11, 2),
    Sketcher.Constraint("Horizontal", 6, 2, 12, 2),
    Sketcher.Constraint("Horizontal", 5, 2, 13, 2),
    Sketcher.Constraint("Horizontal", 4, 2, 14, 2),
    Sketcher.Constraint("Horizontal", 3, 2, 15, 2),
    Sketcher.Constraint("Horizontal", 2, 2, 16, 2),
    Sketcher.Constraint("Horizontal", 1, 2, 17, 2),
    Sketcher.Constraint("Horizontal", 0, 2, 18, 2),
    Sketcher.Constraint("Horizontal", 23, 2, 24, 2),
    Sketcher.Constraint("Horizontal", 25, 2, 26, 2),
    Sketcher.Constraint("Horizontal", 27, 2, 28, 2),
    Sketcher.Constraint("Horizontal", 29, 2, 30, 2),
    Sketcher.Constraint("Horizontal", 31, 2, 32, 2),
    Sketcher.Constraint("Horizontal", 33, 2, 34, 2),
    Sketcher.Constraint("Horizontal", 35, 2, 36, 2),
    Sketcher.Constraint("Horizontal", 37, 2, 38, 2),
    Sketcher.Constraint("Horizontal", 53, 2, 54, 2),
    Sketcher.Constraint("Horizontal", 55, 2, 56, 2),
    Sketcher.Constraint("Horizontal", 57, 2, 58, 2),
    Sketcher.Constraint("Horizontal", 59, 2, 60, 2),
    Sketcher.Constraint("Horizontal", 61, 2, 62, 2),
    Sketcher.Constraint("Horizontal", 63, 2, 64, 2),
    Sketcher.Constraint("Horizontal", 65, 2, 66, 2),
    Sketcher.Constraint("Horizontal", 67, 2, 68, 2),
    Sketcher.Constraint("Horizontal", 51, 2, 72, 1),
    Sketcher.Constraint("Horizontal", 49, 2, 74, 1),
    Sketcher.Constraint("Horizontal", 47, 2, 76, 1),
    Sketcher.Constraint("Vertical", 3, 2, 4, 2),
    Sketcher.Constraint("Vertical", 2, 2, 5, 2),
    Sketcher.Constraint("Vertical", 1, 2, 6, 2),
    Sketcher.Constraint("Vertical", 0, 2, 7, 2),
    Sketcher.Constraint("Vertical", 8, 2, 21, 2),
    Sketcher.Constraint("Equal", 25, 27),
    Sketcher.Constraint("Equal", 27, 29),
    Sketcher.Constraint("Equal", 29, 31),
    Sketcher.Constraint("Equal", 31, 33),
    Sketcher.Constraint("Equal", 33, 35),
    Sketcher.Constraint("Equal", 35, 37),
    Sketcher.Constraint("Equal", 37, 39),
    Sketcher.Constraint("Equal", 23, 41),
    Sketcher.Constraint("Radius", 0, Q("2.031 in")),
    Sketcher.Constraint("Radius", 22, Q("1.875 in")),
    Sketcher.Constraint("DistanceX", 77, 3, -1, 1, Q("1.875 in")),
    Sketcher.Constraint("Radius", 24, 8.372023),
    Sketcher.Constraint("DistanceX", -1, 1, 40, 3, 253.926899),
    Sketcher.Constraint("DistanceX", 10, 2, 10, 1, 268.643833),
    Sketcher.Constraint("DistanceX", 23, 1, 23, 2, 6.675945),
    Sketcher.Constraint("DistanceX", -1, 1, 2, 2, 314.416072),
    Sketcher.Constraint("DistanceX", -1, 1, 3, 2, 319.660208),
    Sketcher.Constraint("DistanceX", 12, 2, -1, 1, 36.77399),
    Sketcher.Constraint("DistanceY", -1, 1, 44, 1, 34.307639),
    Sketcher.Constraint("DistanceX", -1, 1, 45, 2, 311.47985),
    Sketcher.Constraint("DistanceX", -1, 1, 0, 2, 291.688496),
    Sketcher.Constraint("DistanceX", -1, 1, 8, 2, 277.129024),
])
pad1 = body.newObject("PartDesign::Pad", "Pad")
pad1.Profile = sketch1
pad1.Length = Q("1 in")

doc.recompute()
